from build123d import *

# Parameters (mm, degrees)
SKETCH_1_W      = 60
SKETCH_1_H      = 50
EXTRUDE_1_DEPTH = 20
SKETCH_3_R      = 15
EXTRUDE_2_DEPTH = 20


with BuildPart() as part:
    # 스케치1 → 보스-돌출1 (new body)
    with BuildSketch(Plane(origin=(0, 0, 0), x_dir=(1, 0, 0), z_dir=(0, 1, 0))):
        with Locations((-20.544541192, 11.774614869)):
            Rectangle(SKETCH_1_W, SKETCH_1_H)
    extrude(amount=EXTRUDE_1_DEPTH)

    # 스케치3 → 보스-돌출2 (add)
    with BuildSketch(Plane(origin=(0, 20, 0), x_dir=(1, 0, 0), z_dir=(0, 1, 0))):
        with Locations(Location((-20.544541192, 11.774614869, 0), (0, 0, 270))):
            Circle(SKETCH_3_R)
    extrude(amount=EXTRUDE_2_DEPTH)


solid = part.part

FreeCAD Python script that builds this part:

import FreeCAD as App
import Part
import Sketcher


def add_polygon(sketch, points):
    """Adds a closed chain of lines whose ends are joined by coincident constraints."""
    first, n = sketch.GeometryCount, len(points)
    for a, b in zip(points, points[1:] + points[:1]):
        sketch.addGeometry(Part.LineSegment(App.Vector(*a, 0), App.Vector(*b, 0)), False)
    for i in range(n):
        sketch.addConstraint(Sketcher.Constraint("Coincident", first + i, 2, first + (i + 1) % n, 1))

doc = App.newDocument("Part")
body = doc.addObject("PartDesign::Body", "Body")

# Sketch on XZ plane
sketch1 = body.newObject("Sketcher::SketchObject", "Sketch")
sketch1.AttachmentSupport = (doc.getObject("XZ_Plane"), [""])
sketch1.MapMode = "FlatFace"
add_polygon(sketch1, [(-51, -37), (-51, 13), (9, 13), (9, -37)])  # lines 0-3
sketch1.addConstraint(Sketcher.Constraint("Vertical", 0))
sketch1.addConstraint(Sketcher.Constraint("Horizontal", 1))
sketch1.addConstraint(Sketcher.Constraint("Vertical", 2))
sketch1.addConstraint(Sketcher.Constraint("Horizontal", 3))
sketch1.addConstraint(Sketcher.Constraint("DistanceX", 1, 1, 1, 2, 60.0))
sketch1.addConstraint(Sketcher.Constraint("DistanceY", 0, 1, 0, 2, 50.0))
sketch1.addConstraint(Sketcher.Constraint("DistanceX", 0, 2, -1, 1, 50.544541))
sketch1.addConstraint(Sketcher.Constraint("DistanceY", -1, 1, 0, 2, 13.225385))
pad1 = body.newObject("PartDesign::Pad", "Pad")
pad1.Profile = sketch1
pad1.Length = 20
pad1.Reversed = True

# Sketch on XZ plane
sketch2 = body.newObject("Sketcher::SketchObject", "Sketch001")
sketch2.AttachmentSupport = (doc.getObject("XZ_Plane"), [""])
sketch2.MapMode = "FlatFace"
sketch2.AttachmentOffset = App.Placement(App.Vector(0, 0, -20), App.Rotation())
sketch2.addGeometry(Part.Circle(App.Vector(-21, -12, 0), App.Vector(0, 0, 1), 15), False)
sketch2.addConstraint(Sketcher.Constraint("Diameter", 0, 30.0))
sketch2.addConstraint(Sketcher.Constraint("DistanceX", 0, 3, -1, 1, 20.544541))
sketch2.addConstraint(Sketcher.Constraint("DistanceY", 0, 3, -1, 1, 11.774615))
pad2 = body.newObject("PartDesign::Pad", "Pad001")
pad2.Profile = sketch2
pad2.Length = 20
pad2.Reversed = True

doc.recompute()
